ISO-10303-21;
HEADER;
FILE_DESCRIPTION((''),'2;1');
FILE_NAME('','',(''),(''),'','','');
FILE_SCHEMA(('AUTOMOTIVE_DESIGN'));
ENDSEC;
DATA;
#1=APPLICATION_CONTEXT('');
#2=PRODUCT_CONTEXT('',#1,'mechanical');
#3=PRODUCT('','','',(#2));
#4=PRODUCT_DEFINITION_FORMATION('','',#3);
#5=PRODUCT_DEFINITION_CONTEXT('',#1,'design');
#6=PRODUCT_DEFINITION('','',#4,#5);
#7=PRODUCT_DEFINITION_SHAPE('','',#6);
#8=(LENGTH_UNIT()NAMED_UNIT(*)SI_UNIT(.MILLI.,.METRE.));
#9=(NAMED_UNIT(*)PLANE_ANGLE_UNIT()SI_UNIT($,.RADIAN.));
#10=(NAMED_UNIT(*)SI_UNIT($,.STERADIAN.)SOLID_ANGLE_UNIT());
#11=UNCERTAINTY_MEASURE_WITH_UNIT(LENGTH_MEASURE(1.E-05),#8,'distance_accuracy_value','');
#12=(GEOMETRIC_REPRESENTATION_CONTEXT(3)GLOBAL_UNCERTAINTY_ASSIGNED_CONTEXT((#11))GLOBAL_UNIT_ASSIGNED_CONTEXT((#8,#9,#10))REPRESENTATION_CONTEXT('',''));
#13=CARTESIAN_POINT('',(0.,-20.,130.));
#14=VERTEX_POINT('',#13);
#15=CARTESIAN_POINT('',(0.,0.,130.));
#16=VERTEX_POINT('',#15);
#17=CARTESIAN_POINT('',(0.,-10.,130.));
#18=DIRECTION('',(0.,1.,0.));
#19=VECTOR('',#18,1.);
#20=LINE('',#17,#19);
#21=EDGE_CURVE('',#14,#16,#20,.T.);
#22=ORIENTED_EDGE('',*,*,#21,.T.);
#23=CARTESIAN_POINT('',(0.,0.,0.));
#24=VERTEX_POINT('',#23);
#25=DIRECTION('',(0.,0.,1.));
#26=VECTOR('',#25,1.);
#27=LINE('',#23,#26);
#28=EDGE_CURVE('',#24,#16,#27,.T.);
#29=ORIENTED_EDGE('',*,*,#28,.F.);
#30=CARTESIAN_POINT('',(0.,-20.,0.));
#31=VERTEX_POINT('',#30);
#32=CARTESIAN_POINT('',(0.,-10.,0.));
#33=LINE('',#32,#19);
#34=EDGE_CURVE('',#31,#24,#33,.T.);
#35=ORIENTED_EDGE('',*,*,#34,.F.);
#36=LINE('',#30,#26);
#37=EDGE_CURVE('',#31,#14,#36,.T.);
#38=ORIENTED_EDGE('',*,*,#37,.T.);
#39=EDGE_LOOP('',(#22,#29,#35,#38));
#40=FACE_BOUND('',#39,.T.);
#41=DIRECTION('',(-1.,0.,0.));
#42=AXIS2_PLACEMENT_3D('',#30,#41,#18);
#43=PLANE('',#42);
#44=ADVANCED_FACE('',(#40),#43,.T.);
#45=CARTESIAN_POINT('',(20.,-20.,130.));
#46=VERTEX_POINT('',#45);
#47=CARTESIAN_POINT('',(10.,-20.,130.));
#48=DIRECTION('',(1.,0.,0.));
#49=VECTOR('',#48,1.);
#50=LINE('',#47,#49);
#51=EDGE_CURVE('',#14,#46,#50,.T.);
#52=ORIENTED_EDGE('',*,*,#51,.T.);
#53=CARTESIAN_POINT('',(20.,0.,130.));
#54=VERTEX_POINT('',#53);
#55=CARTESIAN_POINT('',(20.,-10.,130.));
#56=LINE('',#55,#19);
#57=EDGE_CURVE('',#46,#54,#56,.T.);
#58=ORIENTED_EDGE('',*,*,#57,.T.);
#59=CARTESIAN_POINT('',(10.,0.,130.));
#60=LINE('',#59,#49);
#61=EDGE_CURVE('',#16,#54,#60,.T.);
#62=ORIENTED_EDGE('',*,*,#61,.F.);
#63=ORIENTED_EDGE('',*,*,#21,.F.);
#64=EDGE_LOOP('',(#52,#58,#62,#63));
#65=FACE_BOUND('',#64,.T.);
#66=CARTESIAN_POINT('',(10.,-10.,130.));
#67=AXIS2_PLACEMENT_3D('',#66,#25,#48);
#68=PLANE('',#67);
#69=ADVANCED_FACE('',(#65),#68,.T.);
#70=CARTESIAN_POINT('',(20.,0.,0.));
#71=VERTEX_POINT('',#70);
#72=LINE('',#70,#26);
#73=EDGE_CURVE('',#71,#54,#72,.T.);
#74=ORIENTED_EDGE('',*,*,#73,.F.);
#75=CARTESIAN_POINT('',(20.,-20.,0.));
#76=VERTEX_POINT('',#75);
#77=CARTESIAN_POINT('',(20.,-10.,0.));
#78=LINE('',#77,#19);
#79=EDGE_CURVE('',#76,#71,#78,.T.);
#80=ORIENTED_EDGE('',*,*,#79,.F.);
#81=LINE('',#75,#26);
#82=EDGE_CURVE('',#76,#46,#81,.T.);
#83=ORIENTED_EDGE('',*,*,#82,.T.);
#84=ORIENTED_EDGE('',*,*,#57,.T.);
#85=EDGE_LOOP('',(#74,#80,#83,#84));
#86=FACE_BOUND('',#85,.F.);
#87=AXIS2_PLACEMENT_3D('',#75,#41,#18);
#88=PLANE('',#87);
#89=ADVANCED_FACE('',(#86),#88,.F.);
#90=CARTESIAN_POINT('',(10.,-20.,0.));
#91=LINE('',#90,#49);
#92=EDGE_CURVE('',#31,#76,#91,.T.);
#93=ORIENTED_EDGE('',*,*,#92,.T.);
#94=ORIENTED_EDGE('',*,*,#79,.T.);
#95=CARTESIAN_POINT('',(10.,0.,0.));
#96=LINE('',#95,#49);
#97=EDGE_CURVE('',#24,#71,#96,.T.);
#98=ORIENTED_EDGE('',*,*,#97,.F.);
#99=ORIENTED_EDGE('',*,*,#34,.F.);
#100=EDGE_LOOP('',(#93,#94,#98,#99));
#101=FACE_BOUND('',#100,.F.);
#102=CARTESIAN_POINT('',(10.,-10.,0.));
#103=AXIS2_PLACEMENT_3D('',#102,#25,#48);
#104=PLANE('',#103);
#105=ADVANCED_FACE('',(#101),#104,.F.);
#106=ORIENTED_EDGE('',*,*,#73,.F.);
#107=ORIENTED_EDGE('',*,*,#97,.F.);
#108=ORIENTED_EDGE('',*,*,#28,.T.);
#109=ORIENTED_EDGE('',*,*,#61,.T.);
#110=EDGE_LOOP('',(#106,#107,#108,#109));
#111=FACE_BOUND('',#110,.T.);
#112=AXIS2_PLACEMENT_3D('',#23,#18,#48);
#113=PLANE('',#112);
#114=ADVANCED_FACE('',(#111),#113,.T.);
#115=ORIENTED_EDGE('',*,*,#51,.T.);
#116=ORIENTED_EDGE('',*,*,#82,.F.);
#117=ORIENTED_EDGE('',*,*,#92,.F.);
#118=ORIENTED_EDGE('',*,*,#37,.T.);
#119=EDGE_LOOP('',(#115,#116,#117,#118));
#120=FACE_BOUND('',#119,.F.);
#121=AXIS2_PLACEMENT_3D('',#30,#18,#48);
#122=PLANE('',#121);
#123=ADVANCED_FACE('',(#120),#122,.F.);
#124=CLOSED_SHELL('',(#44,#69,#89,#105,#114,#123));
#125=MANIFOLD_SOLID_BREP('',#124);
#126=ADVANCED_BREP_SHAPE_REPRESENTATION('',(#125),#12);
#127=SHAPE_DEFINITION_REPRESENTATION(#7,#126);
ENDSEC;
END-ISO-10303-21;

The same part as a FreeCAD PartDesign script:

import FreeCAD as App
import Part
import Sketcher
Q = App.Units.Quantity

doc = App.newDocument("Part")
body = doc.addObject("PartDesign::Body", "Body")

# Sketch on XY plane
sketch1 = doc.addObject("Sketcher::SketchObject", "Sketch")
body.addObject(sketch1)
sketch1.AttachmentSupport = (doc.XY_Plane, [""])
sketch1.MapMode = "FlatFace"
sketch1.addGeometry(Part.LineSegment(App.Vector(0, 0, 0), App.Vector(0, -20, 0)), False)
sketch1.addGeometry(Part.LineSegment(App.Vector(0, -20, 0), App.Vector(20, -20, 0)), False)
sketch1.addGeometry(Part.LineSegment(App.Vector(20, -20, 0), App.Vector(20, 0, 0)), False)
sketch1.addGeometry(Part.LineSegment(App.Vector(20, 0, 0), App.Vector(0, 0, 0)), False)
sketch1.addConstraint(Sketcher.Constraint("Coincident", 0, 2, 1, 1))
sketch1.addConstraint(Sketcher.Constraint("Coincident", 1, 2, 2, 1))
sketch1.addConstraint(Sketcher.Constraint("Coincident", 2, 2, 3, 1))
sketch1.addConstraint(Sketcher.Constraint("Coincident", 3, 2, 0, 1))
sketch1.addConstraint(Sketcher.Constraint("Vertical", 0))
sketch1.addConstraint(Sketcher.Constraint("Horizontal", 1))
sketch1.addConstraint(Sketcher.Constraint("Vertical", 2))
sketch1.addConstraint(Sketcher.Constraint("Horizontal", 3))
sketch1.addConstraint(Sketcher.Constraint("Coincident", 3, 2, -1, 1))
sketch1.addConstraint(Sketcher.Constraint("Equal", 3, 0))
sketch1.addConstraint(Sketcher.Constraint("DistanceX", 1, 1, 1, 2, Q("20 mm")))
pad1 = doc.addObject("PartDesign::Pad", "Pad")
body.addObject(pad1)
pad1.Profile = sketch1
pad1.Length = 130

doc.recompute()
